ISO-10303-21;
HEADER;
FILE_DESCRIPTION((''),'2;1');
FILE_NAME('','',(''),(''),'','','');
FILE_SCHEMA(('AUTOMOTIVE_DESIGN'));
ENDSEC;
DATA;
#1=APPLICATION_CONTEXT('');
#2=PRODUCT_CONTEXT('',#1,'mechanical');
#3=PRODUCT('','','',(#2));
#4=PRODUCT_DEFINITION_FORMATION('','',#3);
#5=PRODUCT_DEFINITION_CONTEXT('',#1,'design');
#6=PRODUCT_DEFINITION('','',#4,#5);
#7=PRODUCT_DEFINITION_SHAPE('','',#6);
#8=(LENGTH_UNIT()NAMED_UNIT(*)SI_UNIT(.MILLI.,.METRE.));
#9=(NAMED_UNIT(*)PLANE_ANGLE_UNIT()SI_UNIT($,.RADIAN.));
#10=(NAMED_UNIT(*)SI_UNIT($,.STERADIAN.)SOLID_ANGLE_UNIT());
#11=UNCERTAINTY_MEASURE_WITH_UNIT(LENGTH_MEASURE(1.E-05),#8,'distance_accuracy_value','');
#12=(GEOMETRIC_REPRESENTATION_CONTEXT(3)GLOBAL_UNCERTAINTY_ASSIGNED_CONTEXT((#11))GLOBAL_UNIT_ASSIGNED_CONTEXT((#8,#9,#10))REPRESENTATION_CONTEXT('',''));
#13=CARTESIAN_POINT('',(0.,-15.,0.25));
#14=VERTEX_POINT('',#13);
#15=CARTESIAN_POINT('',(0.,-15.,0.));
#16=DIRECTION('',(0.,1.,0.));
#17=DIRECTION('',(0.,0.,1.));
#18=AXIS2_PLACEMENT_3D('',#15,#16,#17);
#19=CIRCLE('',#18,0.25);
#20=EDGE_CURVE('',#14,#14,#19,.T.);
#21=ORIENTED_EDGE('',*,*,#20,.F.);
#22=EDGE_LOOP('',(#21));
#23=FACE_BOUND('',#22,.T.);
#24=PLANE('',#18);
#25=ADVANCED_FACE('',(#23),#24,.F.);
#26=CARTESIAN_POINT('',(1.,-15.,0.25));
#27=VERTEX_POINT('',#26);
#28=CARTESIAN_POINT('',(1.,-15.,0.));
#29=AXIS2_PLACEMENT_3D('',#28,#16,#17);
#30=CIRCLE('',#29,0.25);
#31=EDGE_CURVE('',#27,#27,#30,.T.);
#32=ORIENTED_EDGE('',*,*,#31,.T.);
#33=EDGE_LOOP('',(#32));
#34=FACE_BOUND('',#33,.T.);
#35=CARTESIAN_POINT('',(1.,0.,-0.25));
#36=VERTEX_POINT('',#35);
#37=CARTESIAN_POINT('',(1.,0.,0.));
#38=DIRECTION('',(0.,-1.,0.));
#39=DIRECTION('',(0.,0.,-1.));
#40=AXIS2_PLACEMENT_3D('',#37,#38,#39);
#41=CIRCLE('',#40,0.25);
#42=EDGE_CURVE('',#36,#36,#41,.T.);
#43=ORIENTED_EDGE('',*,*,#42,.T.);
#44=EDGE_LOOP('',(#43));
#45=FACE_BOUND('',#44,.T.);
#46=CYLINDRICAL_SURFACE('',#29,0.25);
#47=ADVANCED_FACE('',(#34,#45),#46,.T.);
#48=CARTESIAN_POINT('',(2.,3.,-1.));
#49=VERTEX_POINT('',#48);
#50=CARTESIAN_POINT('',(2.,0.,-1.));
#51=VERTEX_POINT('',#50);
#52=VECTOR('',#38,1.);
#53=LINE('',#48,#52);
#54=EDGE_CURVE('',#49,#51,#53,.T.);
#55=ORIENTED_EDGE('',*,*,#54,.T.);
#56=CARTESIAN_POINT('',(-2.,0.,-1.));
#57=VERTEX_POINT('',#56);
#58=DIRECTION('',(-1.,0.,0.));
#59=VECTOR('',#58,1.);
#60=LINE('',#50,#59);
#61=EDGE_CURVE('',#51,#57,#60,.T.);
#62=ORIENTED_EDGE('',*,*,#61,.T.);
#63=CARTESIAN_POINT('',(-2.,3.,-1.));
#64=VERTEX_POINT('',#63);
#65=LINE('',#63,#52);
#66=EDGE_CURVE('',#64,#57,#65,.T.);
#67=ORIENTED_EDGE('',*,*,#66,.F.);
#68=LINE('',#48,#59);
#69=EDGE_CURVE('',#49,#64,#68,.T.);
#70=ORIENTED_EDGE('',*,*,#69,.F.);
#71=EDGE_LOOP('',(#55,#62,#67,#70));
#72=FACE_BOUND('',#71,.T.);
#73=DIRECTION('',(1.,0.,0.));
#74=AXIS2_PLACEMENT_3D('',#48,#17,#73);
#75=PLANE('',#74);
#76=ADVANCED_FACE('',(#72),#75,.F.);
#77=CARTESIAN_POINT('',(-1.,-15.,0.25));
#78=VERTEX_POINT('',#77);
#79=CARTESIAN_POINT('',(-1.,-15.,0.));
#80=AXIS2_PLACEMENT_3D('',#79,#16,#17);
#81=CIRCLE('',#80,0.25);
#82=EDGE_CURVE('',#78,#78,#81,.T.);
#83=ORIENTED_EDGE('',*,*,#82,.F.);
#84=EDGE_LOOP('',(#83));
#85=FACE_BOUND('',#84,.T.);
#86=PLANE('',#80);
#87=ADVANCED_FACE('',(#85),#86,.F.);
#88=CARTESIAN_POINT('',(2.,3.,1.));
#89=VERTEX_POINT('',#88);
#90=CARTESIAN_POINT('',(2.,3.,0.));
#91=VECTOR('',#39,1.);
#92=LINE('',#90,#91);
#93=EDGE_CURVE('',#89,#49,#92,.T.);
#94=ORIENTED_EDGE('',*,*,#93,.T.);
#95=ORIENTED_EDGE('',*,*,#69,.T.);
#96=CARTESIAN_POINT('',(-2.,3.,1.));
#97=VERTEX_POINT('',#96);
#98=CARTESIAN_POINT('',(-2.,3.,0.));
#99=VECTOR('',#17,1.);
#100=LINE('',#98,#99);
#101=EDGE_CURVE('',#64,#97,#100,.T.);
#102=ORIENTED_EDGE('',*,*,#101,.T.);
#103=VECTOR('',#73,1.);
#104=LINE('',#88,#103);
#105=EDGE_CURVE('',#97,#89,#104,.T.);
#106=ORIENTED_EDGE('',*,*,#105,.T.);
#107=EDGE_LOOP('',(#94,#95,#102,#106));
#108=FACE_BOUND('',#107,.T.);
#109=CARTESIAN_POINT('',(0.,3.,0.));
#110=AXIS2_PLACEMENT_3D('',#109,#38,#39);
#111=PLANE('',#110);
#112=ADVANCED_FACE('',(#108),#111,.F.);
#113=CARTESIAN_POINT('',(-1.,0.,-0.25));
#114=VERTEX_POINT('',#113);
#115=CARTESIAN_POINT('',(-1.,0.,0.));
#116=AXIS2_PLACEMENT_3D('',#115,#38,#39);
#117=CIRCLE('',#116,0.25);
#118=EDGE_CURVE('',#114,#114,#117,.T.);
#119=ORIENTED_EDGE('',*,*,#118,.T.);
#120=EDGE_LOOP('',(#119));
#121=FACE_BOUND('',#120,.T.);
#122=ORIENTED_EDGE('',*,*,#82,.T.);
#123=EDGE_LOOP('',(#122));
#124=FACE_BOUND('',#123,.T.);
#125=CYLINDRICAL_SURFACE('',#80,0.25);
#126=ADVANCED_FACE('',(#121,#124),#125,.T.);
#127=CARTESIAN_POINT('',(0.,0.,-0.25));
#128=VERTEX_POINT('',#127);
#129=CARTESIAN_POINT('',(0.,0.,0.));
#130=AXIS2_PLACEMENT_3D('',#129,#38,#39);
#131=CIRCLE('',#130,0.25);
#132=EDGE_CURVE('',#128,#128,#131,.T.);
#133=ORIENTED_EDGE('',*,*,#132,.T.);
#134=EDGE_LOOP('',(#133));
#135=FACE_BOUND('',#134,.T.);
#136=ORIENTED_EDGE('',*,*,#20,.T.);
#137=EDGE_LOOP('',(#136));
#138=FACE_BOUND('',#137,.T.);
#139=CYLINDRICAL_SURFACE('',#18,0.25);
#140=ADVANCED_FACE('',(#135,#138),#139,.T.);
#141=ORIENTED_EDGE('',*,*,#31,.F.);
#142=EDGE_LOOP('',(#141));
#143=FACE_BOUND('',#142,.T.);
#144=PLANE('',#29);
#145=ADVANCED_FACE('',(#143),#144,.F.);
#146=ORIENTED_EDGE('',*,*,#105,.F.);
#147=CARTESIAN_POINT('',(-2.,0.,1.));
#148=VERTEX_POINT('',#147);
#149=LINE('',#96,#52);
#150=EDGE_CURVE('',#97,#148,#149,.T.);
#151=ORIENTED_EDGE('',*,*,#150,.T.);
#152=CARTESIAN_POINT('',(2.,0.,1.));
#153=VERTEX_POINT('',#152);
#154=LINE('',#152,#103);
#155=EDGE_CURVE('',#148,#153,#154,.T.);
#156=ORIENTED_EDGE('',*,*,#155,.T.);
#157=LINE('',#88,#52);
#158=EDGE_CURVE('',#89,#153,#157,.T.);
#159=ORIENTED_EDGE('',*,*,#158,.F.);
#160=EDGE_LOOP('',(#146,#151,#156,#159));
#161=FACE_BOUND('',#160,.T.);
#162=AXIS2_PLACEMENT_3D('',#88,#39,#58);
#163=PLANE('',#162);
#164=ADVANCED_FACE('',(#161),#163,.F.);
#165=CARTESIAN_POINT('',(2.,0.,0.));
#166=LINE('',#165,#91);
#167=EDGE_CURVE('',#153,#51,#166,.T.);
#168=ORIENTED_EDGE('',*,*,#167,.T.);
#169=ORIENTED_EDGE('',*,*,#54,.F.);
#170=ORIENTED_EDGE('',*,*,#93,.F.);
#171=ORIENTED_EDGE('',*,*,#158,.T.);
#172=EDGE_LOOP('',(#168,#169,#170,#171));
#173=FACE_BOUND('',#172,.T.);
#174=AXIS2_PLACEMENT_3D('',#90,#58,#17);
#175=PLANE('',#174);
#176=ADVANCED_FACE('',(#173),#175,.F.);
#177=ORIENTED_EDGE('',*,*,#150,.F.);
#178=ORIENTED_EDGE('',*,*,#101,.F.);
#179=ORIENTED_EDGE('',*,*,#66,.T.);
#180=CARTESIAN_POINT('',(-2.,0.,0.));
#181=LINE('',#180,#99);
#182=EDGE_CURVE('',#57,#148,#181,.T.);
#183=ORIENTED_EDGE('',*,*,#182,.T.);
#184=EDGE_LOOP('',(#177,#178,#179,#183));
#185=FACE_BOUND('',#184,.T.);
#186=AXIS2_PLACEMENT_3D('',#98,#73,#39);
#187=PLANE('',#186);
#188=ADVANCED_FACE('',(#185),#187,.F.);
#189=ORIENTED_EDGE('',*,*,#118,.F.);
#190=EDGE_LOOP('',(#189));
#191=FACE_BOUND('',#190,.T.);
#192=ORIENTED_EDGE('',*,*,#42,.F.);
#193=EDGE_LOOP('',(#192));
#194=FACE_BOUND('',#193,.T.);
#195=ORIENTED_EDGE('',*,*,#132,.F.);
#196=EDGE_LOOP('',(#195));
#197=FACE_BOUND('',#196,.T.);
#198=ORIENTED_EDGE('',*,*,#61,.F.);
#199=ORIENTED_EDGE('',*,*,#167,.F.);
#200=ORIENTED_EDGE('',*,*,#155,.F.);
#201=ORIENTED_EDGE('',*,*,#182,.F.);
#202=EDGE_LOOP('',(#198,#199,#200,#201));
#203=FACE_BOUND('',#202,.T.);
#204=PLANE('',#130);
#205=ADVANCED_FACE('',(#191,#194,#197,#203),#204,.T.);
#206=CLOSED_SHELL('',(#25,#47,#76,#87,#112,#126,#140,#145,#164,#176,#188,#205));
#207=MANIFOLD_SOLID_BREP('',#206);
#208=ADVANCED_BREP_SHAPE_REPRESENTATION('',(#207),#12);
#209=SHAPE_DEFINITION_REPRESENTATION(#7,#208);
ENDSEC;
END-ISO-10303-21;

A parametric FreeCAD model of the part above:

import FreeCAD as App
import Part
import Sketcher

V = App.Vector
Q = App.Units.Quantity


def add_polygon(sketch, points):
    """Adds a closed chain of lines whose ends are joined by coincident constraints."""
    first, n = sketch.GeometryCount, len(points)
    for a, b in zip(points, points[1:] + points[:1]):
        sketch.addGeometry(Part.LineSegment(App.Vector(*a, 0), App.Vector(*b, 0)), False)
    for i in range(n):
        sketch.addConstraint(Sketcher.Constraint("Coincident", first + i, 2, first + (i + 1) % n, 1))

doc = App.newDocument("Part")
body = doc.addObject("PartDesign::Body", "Body")

sketch1 = doc.addObject("Sketcher::SketchObject", "Sketch")
body.addObject(sketch1)
sketch1.AttachmentSupport = (doc.XZ_Plane, [""])
sketch1.MapMode = "FlatFace"
add_polygon(sketch1, [(-2, -1), (-2, 1), (2, 1), (2, -1)])
sketch1.addConstraint([
    Sketcher.Constraint("Vertical", 0),
    Sketcher.Constraint("Horizontal", 1),
    Sketcher.Constraint("Vertical", 2),
    Sketcher.Constraint("Horizontal", 3),
    Sketcher.Constraint("Symmetric", 0, 2, 2, 2, -1, 1),
    Sketcher.Constraint("DistanceX", 1, 1, 1, 2, Q("4 mm")),
    Sketcher.Constraint("DistanceY", 0, 1, 0, 2, Q("2 mm")),
])
pad1 = doc.addObject("PartDesign::Pad", "Pad")
body.addObject(pad1)
pad1.Profile = sketch1
pad1.Length = 3
pad1.Reversed = True

sketch2 = doc.addObject("Sketcher::SketchObject", "Sketch001")
body.addObject(sketch2)
sketch2.AttachmentSupport = (doc.XZ_Plane, [""])
sketch2.MapMode = "FlatFace"
sketch2.addGeometry([
    Part.Circle(V(0, 0, 0), V(0, 0, 1), 0.25),
    Part.Circle(V(-1, 0, 0), V(0, 0, 1), 0.25),
    Part.Circle(V(1, 0, 0), V(0, 0, 1), 0.25),
], False)
sketch2.addConstraint([
    Sketcher.Constraint("Coincident", 0, 3, -1, 1),
    Sketcher.Constraint("Equal", 0, 1),
    Sketcher.Constraint("Equal", 1, 2),
    Sketcher.Constraint("Symmetric", 1, 3, 2, 3, -1, 1),
    Sketcher.Constraint("PointOnObject", 1, 3, -1),
    Sketcher.Constraint("Diameter", 0, Q("0.5 mm")),
    Sketcher.Constraint("DistanceX", 1, 3, -1, 1, Q("1 mm")),
])
pad2 = doc.addObject("PartDesign::Pad", "Pad001")
body.addObject(pad2)
pad2.Profile = sketch2
pad2.Length = 15

doc.recompute()
